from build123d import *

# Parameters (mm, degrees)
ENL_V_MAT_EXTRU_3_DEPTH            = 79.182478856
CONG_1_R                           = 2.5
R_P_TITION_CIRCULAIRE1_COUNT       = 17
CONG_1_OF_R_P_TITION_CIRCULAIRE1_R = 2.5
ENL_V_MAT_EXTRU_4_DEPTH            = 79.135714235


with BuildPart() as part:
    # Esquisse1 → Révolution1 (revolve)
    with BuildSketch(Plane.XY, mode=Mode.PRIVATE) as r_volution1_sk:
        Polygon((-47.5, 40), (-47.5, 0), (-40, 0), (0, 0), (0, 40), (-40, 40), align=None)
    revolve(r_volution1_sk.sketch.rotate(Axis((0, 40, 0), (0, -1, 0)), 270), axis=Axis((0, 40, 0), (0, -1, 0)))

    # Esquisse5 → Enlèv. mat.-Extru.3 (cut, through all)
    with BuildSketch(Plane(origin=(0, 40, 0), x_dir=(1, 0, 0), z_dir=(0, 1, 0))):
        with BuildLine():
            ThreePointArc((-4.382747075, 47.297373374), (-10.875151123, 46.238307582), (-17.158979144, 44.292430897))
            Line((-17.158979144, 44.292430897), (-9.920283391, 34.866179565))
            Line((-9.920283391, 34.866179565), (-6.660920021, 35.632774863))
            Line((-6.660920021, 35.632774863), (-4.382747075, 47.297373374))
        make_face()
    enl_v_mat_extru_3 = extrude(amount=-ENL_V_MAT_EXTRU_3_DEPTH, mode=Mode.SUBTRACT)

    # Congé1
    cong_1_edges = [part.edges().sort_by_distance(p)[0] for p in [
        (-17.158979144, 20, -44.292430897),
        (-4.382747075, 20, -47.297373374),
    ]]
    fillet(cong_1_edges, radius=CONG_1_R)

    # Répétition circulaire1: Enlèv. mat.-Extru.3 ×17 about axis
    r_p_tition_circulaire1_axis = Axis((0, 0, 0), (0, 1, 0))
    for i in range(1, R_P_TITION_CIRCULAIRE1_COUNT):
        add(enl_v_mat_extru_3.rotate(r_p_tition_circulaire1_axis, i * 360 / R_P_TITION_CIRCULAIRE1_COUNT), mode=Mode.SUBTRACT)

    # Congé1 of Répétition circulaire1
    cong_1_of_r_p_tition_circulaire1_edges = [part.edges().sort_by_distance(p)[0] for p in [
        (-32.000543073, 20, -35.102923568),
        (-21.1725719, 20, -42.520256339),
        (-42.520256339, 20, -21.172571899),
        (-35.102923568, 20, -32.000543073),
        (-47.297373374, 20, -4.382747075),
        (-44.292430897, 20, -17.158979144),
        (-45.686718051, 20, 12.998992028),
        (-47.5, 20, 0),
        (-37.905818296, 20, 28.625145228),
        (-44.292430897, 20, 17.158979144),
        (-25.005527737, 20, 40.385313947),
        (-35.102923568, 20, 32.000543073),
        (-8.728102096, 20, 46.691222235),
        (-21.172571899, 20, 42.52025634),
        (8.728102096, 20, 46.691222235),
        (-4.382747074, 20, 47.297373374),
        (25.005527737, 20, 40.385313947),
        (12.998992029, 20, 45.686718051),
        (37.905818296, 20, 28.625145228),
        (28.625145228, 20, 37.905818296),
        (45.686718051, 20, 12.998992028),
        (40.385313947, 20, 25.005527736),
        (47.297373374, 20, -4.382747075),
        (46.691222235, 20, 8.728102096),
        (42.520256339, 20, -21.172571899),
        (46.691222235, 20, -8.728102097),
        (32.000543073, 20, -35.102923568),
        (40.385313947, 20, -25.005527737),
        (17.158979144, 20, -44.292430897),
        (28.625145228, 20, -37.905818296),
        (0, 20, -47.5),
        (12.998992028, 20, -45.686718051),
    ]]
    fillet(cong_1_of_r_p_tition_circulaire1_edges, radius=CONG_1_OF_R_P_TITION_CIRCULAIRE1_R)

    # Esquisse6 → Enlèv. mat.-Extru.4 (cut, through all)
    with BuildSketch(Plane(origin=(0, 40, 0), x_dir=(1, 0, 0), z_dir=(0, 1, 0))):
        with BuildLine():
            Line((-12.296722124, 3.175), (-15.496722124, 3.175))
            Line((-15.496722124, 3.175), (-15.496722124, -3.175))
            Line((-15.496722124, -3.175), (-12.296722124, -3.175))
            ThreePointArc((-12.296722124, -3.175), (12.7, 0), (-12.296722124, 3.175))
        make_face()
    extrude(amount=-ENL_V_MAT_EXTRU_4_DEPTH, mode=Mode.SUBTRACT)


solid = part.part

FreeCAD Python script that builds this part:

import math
import FreeCAD as App
import Part
import Sketcher

V = App.Vector
Q = App.Units.Quantity


def edges_at(feature, points):
    """Names of the edges that pass closest to the given points."""
    edges = feature.Shape.Edges
    near = lambda p: min(range(len(edges)), key=lambda i: edges[i].distToShape(Part.Vertex(*p))[0])
    return sorted({f"Edge{near(p) + 1}" for p in points})


def add_polygon(sketch, points):
    """Adds a closed chain of lines whose ends are joined by coincident constraints."""
    first, n = sketch.GeometryCount, len(points)
    for a, b in zip(points, points[1:] + points[:1]):
        sketch.addGeometry(Part.LineSegment(App.Vector(*a, 0), App.Vector(*b, 0)), False)
    for i in range(n):
        sketch.addConstraint(Sketcher.Constraint("Coincident", first + i, 2, first + (i + 1) % n, 1))

doc = App.newDocument("Part")
body = doc.addObject("PartDesign::Body", "Body")

# Sketch on XY plane
sketch1 = doc.addObject("Sketcher::SketchObject", "Sketch")
body.addObject(sketch1)
sketch1.AttachmentSupport = (doc.XY_Plane, [""])
sketch1.MapMode = "FlatFace"
add_polygon(sketch1, [(-47.5, 40), (-47.5, 0), (0, 0), (0, 40)])  # lines 0-3
sketch1.addConstraint([
    Sketcher.Constraint("Vertical", 0),
    Sketcher.Constraint("Horizontal", 1),
    Sketcher.Constraint("Vertical", 2),
    Sketcher.Constraint("Horizontal", 3),
    Sketcher.Constraint("Coincident", 1, 2, -1, 1),
    Sketcher.Constraint("DistanceY", 0, 2, 0, 1, Q("40 mm")),
    Sketcher.Constraint("DistanceX", 1, 1, 1, 2, Q("47.5 mm")),
])
revolution = doc.addObject("PartDesign::Revolution", "Revolution")
body.addObject(revolution)
revolution.Profile = sketch1
revolution.ReferenceAxis = (sketch1, ["V_Axis"])
revolution.Angle = 360

# Sketch on XZ plane
sketch2 = doc.addObject("Sketcher::SketchObject", "Sketch001")
body.addObject(sketch2)
sketch2.AttachmentSupport = (doc.XZ_Plane, [""])
sketch2.MapMode = "FlatFace"
sketch2.AttachmentOffset = App.Placement(V(0, 0, -40), App.Rotation())
sketch2.addGeometry([
    Part.ArcOfCircle(Part.Circle(V(0, 0, 0), V(0, 0, 1), 47.5), math.radians(-111.176471), math.radians(-95.294118)),
    Part.LineSegment(V(-17.158979, -44.292431, 0), V(-9.920283, -34.86618, 0)),
    Part.LineSegment(V(-9.920283, -34.86618, 0), V(-6.66092, -35.632775, 0)),
    Part.LineSegment(V(-6.66092, -35.632775, 0), V(-4.382747, -47.297373, 0)),
], False)
sketch2.addConstraint([
    Sketcher.Constraint("Coincident", 0, 1, 1, 1),
    Sketcher.Constraint("Coincident", 1, 2, 2, 1),
    Sketcher.Constraint("Coincident", 2, 2, 3, 1),
    Sketcher.Constraint("Coincident", 3, 2, 0, 2),
    Sketcher.Constraint("Coincident", 0, 3, -1, 1),
    Sketcher.Constraint("Equal", 1, 3),
    Sketcher.Constraint("Radius", 0, Q("47.5 mm")),
    Sketcher.Constraint("Distance", 2, Q("3.348301 mm")),
    Sketcher.Constraint("DistanceY", 3, 2, 2, 2, Q("11.664599 mm")),
    Sketcher.Constraint("DistanceX", 0, 1, -1, 1, Q("17.158979 mm")),
    Sketcher.Constraint("DistanceY", 1, 2, -1, 1, Q("34.86618 mm")),
    Sketcher.Constraint("DistanceX", 2, 2, -1, 1, Q("6.66092 mm")),
])
pocket1 = doc.addObject("PartDesign::Pocket", "Pocket")
body.addObject(pocket1)
pocket1.Profile = sketch2
pocket1.Type = "ThroughAll"
pocket1.Reversed = True
doc.recompute()

fillet = doc.addObject("PartDesign::Fillet", "Fillet")
body.addObject(fillet)
fillet.Base = (pocket1, edges_at(pocket1, [(-17.159, 20, -44.292), (-4.383, 20, -47.297)]))
fillet.Radius = 2.5
doc.recompute()

polarpattern = doc.addObject("PartDesign::PolarPattern", "PolarPattern")
body.addObject(polarpattern)
polarpattern.Originals = [pocket1]
polarpattern.Axis = (doc.Y_Axis, [""])
polarpattern.Angle = 360
polarpattern.Occurrences = 17
body.Tip = polarpattern
doc.recompute()

fillet2 = doc.addObject("PartDesign::Fillet", "Fillet001")
body.addObject(fillet2)
fillet2.Base = (polarpattern, edges_at(polarpattern, [
    (-32.001, 20, -35.103),
    (-21.173, 20, -42.52),
    (-42.52, 20, -21.173),
    (-35.103, 20, -32.001),
    (-47.297, 20, -4.383),
    (-44.292, 20, -17.159),
    (-45.687, 20, 12.999),
    (-47.5, 20, 0),
    (-37.906, 20, 28.625),
    (-44.292, 20, 17.159),
    (-25.006, 20, 40.385),
    (-35.103, 20, 32.001),
    (-8.728, 20, 46.691),
    (-21.173, 20, 42.52),
    (8.728, 20, 46.691),
    (-4.383, 20, 47.297),
    (25.006, 20, 40.385),
    (12.999, 20, 45.687),
    (37.906, 20, 28.625),
    (28.625, 20, 37.906),
    (45.687, 20, 12.999),
    (40.385, 20, 25.006),
    (47.297, 20, -4.383),
    (46.691, 20, 8.728),
    (42.52, 20, -21.173),
    (46.691, 20, -8.728),
    (32.001, 20, -35.103),
    (40.385, 20, -25.006),
    (17.159, 20, -44.292),
    (28.625, 20, -37.906),
    (0, 20, -47.5),
    (12.999, 20, -45.687),
]))
fillet2.Radius = 2.5

# Sketch on XZ plane
sketch3 = doc.addObject("Sketcher::SketchObject", "Sketch002")
body.addObject(sketch3)
sketch3.AttachmentSupport = (doc.XZ_Plane, [""])
sketch3.MapMode = "FlatFace"
sketch3.AttachmentOffset = App.Placement(V(0, 0, -40), App.Rotation())
sketch3.addGeometry([
    Part.LineSegment(V(-12.296722, -3.175, 0), V(-15.496722, -3.175, 0)),
    Part.LineSegment(V(-15.496722, -3.175, 0), V(-15.496722, 3.175, 0)),
    Part.LineSegment(V(-15.496722, 3.175, 0), V(-12.296722, 3.175, 0)),
    Part.ArcOfCircle(Part.Circle(V(0, 0, 0), V(0, 0, 1), 12.7), math.radians(-165.522488), math.radians(165.522488)),
], False)
sketch3.addConstraint([
    Sketcher.Constraint("Coincident", 0, 2, 1, 1),
    Sketcher.Constraint("Coincident", 1, 2, 2, 1),
    Sketcher.Constraint("Coincident", 2, 2, 3, 2),
    Sketcher.Constraint("Coincident", 3, 1, 0, 1),
    Sketcher.Constraint("Horizontal", 0),
    Sketcher.Constraint("Vertical", 1),
    Sketcher.Constraint("Horizontal", 2),
    Sketcher.Constraint("Coincident", 3, 3, -1, 1),
    Sketcher.Constraint("Vertical", 2, 2, 3, 1),
    Sketcher.Constraint("Radius", 3, Q("12.7 mm")),
    Sketcher.Constraint("DistanceX", 0, 2, 0, 1, Q("3.2 mm")),
    Sketcher.Constraint("DistanceY", 1, 1, 1, 2, Q("6.35 mm")),
])
pocket2 = doc.addObject("PartDesign::Pocket", "Pocket001")
body.addObject(pocket2)
pocket2.Profile = sketch3
pocket2.Type = "ThroughAll"
pocket2.Reversed = True

doc.recompute()
